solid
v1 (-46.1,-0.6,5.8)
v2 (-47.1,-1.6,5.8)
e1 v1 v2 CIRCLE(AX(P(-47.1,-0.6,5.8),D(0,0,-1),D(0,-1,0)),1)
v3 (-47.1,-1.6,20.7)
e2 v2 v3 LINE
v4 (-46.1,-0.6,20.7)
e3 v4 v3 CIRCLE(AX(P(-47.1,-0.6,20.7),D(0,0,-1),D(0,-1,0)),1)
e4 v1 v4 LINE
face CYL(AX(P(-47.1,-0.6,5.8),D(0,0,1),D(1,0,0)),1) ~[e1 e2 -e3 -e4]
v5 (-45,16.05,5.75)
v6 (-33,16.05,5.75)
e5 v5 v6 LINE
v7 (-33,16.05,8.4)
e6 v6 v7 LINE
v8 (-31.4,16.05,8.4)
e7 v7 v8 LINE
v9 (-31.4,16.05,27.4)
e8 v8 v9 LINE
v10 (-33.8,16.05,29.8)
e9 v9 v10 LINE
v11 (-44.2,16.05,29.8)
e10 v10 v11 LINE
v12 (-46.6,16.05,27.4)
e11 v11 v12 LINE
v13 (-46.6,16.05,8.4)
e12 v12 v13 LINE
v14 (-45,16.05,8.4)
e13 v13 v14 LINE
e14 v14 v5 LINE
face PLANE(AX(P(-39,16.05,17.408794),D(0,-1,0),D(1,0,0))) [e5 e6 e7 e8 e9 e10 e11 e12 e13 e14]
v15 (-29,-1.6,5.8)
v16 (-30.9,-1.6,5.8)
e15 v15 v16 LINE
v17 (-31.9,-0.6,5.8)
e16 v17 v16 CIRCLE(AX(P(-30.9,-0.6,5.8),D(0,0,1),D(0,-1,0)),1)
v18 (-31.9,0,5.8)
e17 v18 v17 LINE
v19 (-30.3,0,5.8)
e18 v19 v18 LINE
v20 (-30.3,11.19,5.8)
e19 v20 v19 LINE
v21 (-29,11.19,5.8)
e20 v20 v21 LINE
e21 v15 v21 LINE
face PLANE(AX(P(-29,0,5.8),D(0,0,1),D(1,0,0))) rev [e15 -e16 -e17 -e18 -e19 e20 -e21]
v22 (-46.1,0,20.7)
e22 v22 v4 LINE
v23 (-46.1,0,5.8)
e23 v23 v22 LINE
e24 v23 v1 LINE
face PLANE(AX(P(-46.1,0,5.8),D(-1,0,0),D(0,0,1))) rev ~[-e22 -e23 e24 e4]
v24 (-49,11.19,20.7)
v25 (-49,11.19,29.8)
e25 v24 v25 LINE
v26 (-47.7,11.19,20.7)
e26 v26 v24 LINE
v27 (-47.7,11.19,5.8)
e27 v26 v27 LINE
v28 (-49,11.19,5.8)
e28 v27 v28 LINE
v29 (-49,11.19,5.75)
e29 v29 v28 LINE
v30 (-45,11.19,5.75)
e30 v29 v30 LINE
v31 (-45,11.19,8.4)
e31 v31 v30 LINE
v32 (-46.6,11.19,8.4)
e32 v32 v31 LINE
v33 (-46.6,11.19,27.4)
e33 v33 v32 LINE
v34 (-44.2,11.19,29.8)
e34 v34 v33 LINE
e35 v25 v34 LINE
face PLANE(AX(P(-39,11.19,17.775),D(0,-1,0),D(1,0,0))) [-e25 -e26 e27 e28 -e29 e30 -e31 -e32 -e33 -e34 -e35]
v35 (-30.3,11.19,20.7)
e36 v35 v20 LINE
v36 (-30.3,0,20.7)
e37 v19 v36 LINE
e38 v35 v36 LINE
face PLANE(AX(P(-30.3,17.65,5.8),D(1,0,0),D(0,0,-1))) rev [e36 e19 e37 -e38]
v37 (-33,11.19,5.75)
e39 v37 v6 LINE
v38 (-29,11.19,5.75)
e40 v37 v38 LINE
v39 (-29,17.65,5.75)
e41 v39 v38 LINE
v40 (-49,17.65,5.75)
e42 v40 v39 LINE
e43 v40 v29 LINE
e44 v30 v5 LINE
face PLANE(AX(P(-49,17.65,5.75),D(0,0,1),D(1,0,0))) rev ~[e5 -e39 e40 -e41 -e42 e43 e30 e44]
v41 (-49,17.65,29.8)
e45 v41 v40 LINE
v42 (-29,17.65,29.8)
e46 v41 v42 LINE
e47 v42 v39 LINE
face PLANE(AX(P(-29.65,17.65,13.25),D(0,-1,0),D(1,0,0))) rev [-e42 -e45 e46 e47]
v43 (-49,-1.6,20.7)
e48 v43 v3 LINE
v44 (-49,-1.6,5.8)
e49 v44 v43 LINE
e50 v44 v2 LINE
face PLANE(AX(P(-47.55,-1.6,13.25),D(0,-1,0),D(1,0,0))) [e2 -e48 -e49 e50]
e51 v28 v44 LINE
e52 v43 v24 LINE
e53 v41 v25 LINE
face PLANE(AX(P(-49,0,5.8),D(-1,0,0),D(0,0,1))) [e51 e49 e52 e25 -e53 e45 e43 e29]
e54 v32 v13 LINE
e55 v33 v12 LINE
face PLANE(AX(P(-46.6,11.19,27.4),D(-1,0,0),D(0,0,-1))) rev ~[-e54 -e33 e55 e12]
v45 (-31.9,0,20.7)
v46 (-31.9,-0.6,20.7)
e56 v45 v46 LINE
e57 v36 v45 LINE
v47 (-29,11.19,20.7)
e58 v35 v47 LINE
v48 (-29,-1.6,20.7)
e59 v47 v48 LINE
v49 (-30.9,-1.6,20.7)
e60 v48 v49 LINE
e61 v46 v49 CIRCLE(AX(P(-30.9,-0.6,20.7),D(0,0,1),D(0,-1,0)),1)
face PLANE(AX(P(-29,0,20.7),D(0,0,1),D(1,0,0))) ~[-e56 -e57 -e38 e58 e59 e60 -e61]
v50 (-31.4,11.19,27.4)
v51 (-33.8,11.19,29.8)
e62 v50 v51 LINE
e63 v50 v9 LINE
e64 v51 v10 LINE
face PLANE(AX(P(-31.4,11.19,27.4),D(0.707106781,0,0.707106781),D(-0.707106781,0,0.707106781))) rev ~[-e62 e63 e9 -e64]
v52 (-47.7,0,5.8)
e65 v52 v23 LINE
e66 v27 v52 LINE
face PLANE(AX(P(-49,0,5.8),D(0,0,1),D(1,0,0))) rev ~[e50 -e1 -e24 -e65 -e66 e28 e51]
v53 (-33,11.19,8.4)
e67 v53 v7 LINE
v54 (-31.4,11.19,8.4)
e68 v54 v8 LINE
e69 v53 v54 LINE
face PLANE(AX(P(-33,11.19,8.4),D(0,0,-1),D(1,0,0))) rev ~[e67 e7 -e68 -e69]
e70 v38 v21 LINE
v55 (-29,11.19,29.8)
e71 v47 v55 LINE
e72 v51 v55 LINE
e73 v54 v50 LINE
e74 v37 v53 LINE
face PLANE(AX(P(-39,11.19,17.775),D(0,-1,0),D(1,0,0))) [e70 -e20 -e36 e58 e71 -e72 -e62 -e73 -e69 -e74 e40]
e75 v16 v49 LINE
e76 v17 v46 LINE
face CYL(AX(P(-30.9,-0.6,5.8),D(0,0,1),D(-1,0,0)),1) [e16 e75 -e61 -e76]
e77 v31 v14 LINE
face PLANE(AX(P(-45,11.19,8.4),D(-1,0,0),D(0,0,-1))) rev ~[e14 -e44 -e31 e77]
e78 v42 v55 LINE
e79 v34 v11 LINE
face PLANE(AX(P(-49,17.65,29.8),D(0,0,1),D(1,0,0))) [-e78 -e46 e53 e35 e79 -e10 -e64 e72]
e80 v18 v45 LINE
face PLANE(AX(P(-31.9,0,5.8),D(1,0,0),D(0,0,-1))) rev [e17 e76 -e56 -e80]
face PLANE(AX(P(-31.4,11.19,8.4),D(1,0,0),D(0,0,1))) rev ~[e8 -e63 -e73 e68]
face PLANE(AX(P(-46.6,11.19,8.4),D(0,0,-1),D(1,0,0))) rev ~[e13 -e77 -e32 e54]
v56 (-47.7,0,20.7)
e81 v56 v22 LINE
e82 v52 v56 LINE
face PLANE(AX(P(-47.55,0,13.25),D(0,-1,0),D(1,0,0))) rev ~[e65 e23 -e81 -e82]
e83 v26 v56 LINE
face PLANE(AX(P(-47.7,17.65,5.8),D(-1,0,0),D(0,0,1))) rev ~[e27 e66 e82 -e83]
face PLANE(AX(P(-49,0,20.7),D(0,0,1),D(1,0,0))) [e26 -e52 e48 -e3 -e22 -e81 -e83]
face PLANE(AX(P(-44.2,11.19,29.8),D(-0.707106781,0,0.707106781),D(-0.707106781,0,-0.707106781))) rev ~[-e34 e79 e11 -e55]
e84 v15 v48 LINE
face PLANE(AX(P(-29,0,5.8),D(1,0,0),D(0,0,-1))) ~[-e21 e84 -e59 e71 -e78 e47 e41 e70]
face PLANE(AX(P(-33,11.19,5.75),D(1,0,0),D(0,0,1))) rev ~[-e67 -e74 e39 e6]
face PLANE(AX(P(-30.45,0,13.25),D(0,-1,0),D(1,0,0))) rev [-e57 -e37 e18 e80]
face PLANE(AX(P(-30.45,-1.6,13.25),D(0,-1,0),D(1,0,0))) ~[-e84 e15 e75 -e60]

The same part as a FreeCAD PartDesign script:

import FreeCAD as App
import Part
import Sketcher
from FreeCAD import Vector
Q = App.Units.Quantity


def edges_at(feature, points):
    """Names of the edges that pass closest to the given points."""
    edges = feature.Shape.Edges
    near = lambda p: min(range(len(edges)), key=lambda i: edges[i].distToShape(Part.Vertex(*p))[0])
    return sorted({f"Edge{near(p) + 1}" for p in points})


def add_polygon(sketch, points):
    """Adds a closed chain of lines whose ends are joined by coincident constraints."""
    first, n = sketch.GeometryCount, len(points)
    for a, b in zip(points, points[1:] + points[:1]):
        sketch.addGeometry(Part.LineSegment(App.Vector(*a, 0), App.Vector(*b, 0)), False)
    for i in range(n):
        sketch.addConstraint(Sketcher.Constraint("Coincident", first + i, 2, first + (i + 1) % n, 1))

doc = App.newDocument("Part")
params = doc.addObject("Spreadsheet::Sheet", "Params")
for row, (alias, value) in enumerate([
    ("sketch1_width", "20 mm"),
    ("sketch1_height", "24.05 mm"),
    ("pad1_length", "6.46 mm"),
    ("sketch2_width", "12 mm"),
    ("sketch2_height", "19 mm"),
    ("sketch2_width2", "10.4 mm"),
    ("sketch2_width3", "1.6 mm"),
    ("sketch2_height2", "2.65 mm"),
    ("pocket1_length", "4.86 mm"),
    ("sketch3_width", "1.3 mm"),
    ("sketch3_height", "14.9 mm"),
    ("pad2_length", "17.65 mm"),
    ("sketch4_width", "2.9 mm"),
    ("sketch4_height", "14.9 mm"),
    ("pad3_length", "1.6 mm"),
    ("fillet_radius", "1 mm"),
], start=1):
    params.set(f"A{row}", alias)
    params.set(f"B{row}", "=" + value)
    params.setAlias(f"B{row}", alias)

body = doc.addObject("PartDesign::Body", "Body")

sketch1 = body.newObject("Sketcher::SketchObject", "Sketch")
sketch1.AttachmentSupport = (doc.getObject("XY_Plane"), [""])
sketch1.MapMode = "FlatFace"
add_polygon(sketch1, [(-10, 24), (-10, 0), (10, 0), (10, 24)])
sketch1.addConstraint(Sketcher.Constraint("Vertical", 0))
sketch1.addConstraint(Sketcher.Constraint("Horizontal", 1))
sketch1.addConstraint(Sketcher.Constraint("Vertical", 2))
sketch1.addConstraint(Sketcher.Constraint("Horizontal", 3))
sketch1.addConstraint(Sketcher.Constraint("Symmetric", 0, 2, 1, 2, -1, 1))
sketch1.addConstraint(Sketcher.Constraint("DistanceX", 1, 1, 1, 2, Q("20 mm")))
sketch1.addConstraint(Sketcher.Constraint("DistanceY", 0, 2, 0, 1, Q("24.05 mm")))
sketch1.setExpression("Constraints[9]", "Params.sketch1_width")
sketch1.setExpression("Constraints[10]", "Params.sketch1_height")
pad1 = body.newObject("PartDesign::Pad", "Pad")
pad1.Profile = sketch1
pad1.setExpression("Length", "Params.pad1_length")

sketch2 = body.newObject("Sketcher::SketchObject", "Sketch001")
sketch2.AttachmentSupport = (doc.getObject("XY_Plane"), [""])
sketch2.MapMode = "FlatFace"
sketch2.AttachmentOffset = App.Placement(Vector(0, 0, 6.46), App.Rotation())
add_polygon(sketch2, [(7.6, 2.6), (7.6, 21.6), (5.2, 24.1), (-5.2, 24.1), (-7.6, 21.6), (-7.6, 2.6), (-6, 2.6), (-6, 0), (6, 0), (6, 2.6)])
sketch2.addConstraint(Sketcher.Constraint("Vertical", 0))
sketch2.addConstraint(Sketcher.Constraint("Horizontal", 2))
sketch2.addConstraint(Sketcher.Constraint("Vertical", 4))
sketch2.addConstraint(Sketcher.Constraint("Horizontal", 5))
sketch2.addConstraint(Sketcher.Constraint("Vertical", 6))
sketch2.addConstraint(Sketcher.Constraint("Horizontal", 7))
sketch2.addConstraint(Sketcher.Constraint("Vertical", 8))
sketch2.addConstraint(Sketcher.Constraint("Horizontal", 9))
sketch2.addConstraint(Sketcher.Constraint("Symmetric", 6, 2, 7, 2, -1, 1))
sketch2.addConstraint(Sketcher.Constraint("Symmetric", 0, 2, 3, 2, -2))
sketch2.addConstraint(Sketcher.Constraint("Perpendicular", 1, 3))
sketch2.addConstraint(Sketcher.Constraint("Horizontal", 5, 2, 8, 2))
sketch2.addConstraint(Sketcher.Constraint("Equal", 1, 3))
sketch2.addConstraint(Sketcher.Constraint("DistanceX", 7, 1, 7, 2, Q("12 mm")))
sketch2.addConstraint(Sketcher.Constraint("DistanceY", 0, 1, 0, 2, Q("19 mm")))
sketch2.addConstraint(Sketcher.Constraint("DistanceX", 2, 2, 2, 1, Q("10.4 mm")))
sketch2.addConstraint(Sketcher.Constraint("DistanceX", 5, 1, 5, 2, Q("1.6 mm")))
sketch2.addConstraint(Sketcher.Constraint("DistanceY", 6, 2, 6, 1, Q("2.65 mm")))
sketch2.setExpression("Constraints[23]", "Params.sketch2_width")
sketch2.setExpression("Constraints[24]", "Params.sketch2_height")
sketch2.setExpression("Constraints[25]", "Params.sketch2_width2")
sketch2.setExpression("Constraints[26]", "Params.sketch2_width3")
sketch2.setExpression("Constraints[27]", "Params.sketch2_height2")
pocket1 = body.newObject("PartDesign::Pocket", "Pocket")
pocket1.Profile = sketch2
pocket1.setExpression("Length", "Params.pocket1_length")

sketch3 = body.newObject("Sketcher::SketchObject", "Sketch002")
sketch3.AttachmentSupport = (doc.getObject("XY_Plane"), [""])
sketch3.MapMode = "FlatFace"
add_polygon(sketch3, [(-10, 14.9), (-10, 0.1), (-8.7, 0.1), (-8.7, 14.9)])
sketch3.addConstraint(Sketcher.Constraint("Vertical", 0))
sketch3.addConstraint(Sketcher.Constraint("Horizontal", 1))
sketch3.addConstraint(Sketcher.Constraint("Vertical", 2))
sketch3.addConstraint(Sketcher.Constraint("Horizontal", 3))
sketch3.addConstraint(Sketcher.Constraint("DistanceX", 1, 1, 1, 2, Q("1.3 mm")))
sketch3.addConstraint(Sketcher.Constraint("DistanceY", 0, 2, 0, 1, Q("14.9 mm")))
sketch3.addConstraint(Sketcher.Constraint("DistanceX", 0, 2, -1, 1, Q("10 mm")))
sketch3.addConstraint(Sketcher.Constraint("DistanceY", -1, 1, 0, 2, Q("0.05 mm")))
sketch3.setExpression("Constraints[8]", "Params.sketch3_width")
sketch3.setExpression("Constraints[9]", "Params.sketch3_height")
pad2 = body.newObject("PartDesign::Pad", "Pad001")
pad2.Profile = sketch3
pad2.setExpression("Length", "Params.pad2_length")

sketch4 = body.newObject("Sketcher::SketchObject", "Sketch003")
sketch4.AttachmentSupport = (doc.getObject("XY_Plane"), [""])
sketch4.MapMode = "FlatFace"
sketch4.AttachmentOffset = App.Placement(Vector(0, 0, 17.65), App.Rotation())
add_polygon(sketch4, [(-10, 14.9), (-10, 0.1), (-7.1, 0.1), (-7.1, 14.9)])
sketch4.addConstraint(Sketcher.Constraint("Vertical", 0))
sketch4.addConstraint(Sketcher.Constraint("Horizontal", 1))
sketch4.addConstraint(Sketcher.Constraint("Vertical", 2))
sketch4.addConstraint(Sketcher.Constraint("Horizontal", 3))
sketch4.addConstraint(Sketcher.Constraint("DistanceX", 1, 1, 1, 2, Q("2.9 mm")))
sketch4.addConstraint(Sketcher.Constraint("DistanceY", 0, 2, 0, 1, Q("14.9 mm")))
sketch4.addConstraint(Sketcher.Constraint("DistanceX", 0, 2, -1, 1, Q("10 mm")))
sketch4.addConstraint(Sketcher.Constraint("DistanceY", -1, 1, 0, 2, Q("0.05 mm")))
sketch4.setExpression("Constraints[8]", "Params.sketch4_width")
sketch4.setExpression("Constraints[9]", "Params.sketch4_height")
pad3 = body.newObject("PartDesign::Pad", "Pad002")
pad3.Profile = sketch4
pad3.setExpression("Length", "Params.pad3_length")
doc.recompute()

mirrored = body.newObject("PartDesign::Mirrored", "Mirrored")
mirrored.Originals = [pad2, pad3]
mirrored.MirrorPlane = (doc.getObject("YZ_Plane"), [""])
body.Tip = mirrored
doc.recompute()

fillet = body.newObject("PartDesign::Fillet", "Fillet")
fillet.Base = (mirrored, edges_at(mirrored, [(7.1, 7.5, 19.25), (-7.1, 7.5, 19.25)]))
fillet.setExpression("Radius", "Params.fillet_radius")
body2 = doc.addObject("PartDesign::Body", "Body001")
doc.recompute()

body.Placement = App.Placement(Vector(-39, 17.65, 5.75), App.Rotation(Vector(1, 0, 0), 90))
boolean = body2.newObject("PartDesign::Boolean", "Boolean")
boolean.Type = "Fuse"
boolean.addObjects([body])

doc.recompute()
